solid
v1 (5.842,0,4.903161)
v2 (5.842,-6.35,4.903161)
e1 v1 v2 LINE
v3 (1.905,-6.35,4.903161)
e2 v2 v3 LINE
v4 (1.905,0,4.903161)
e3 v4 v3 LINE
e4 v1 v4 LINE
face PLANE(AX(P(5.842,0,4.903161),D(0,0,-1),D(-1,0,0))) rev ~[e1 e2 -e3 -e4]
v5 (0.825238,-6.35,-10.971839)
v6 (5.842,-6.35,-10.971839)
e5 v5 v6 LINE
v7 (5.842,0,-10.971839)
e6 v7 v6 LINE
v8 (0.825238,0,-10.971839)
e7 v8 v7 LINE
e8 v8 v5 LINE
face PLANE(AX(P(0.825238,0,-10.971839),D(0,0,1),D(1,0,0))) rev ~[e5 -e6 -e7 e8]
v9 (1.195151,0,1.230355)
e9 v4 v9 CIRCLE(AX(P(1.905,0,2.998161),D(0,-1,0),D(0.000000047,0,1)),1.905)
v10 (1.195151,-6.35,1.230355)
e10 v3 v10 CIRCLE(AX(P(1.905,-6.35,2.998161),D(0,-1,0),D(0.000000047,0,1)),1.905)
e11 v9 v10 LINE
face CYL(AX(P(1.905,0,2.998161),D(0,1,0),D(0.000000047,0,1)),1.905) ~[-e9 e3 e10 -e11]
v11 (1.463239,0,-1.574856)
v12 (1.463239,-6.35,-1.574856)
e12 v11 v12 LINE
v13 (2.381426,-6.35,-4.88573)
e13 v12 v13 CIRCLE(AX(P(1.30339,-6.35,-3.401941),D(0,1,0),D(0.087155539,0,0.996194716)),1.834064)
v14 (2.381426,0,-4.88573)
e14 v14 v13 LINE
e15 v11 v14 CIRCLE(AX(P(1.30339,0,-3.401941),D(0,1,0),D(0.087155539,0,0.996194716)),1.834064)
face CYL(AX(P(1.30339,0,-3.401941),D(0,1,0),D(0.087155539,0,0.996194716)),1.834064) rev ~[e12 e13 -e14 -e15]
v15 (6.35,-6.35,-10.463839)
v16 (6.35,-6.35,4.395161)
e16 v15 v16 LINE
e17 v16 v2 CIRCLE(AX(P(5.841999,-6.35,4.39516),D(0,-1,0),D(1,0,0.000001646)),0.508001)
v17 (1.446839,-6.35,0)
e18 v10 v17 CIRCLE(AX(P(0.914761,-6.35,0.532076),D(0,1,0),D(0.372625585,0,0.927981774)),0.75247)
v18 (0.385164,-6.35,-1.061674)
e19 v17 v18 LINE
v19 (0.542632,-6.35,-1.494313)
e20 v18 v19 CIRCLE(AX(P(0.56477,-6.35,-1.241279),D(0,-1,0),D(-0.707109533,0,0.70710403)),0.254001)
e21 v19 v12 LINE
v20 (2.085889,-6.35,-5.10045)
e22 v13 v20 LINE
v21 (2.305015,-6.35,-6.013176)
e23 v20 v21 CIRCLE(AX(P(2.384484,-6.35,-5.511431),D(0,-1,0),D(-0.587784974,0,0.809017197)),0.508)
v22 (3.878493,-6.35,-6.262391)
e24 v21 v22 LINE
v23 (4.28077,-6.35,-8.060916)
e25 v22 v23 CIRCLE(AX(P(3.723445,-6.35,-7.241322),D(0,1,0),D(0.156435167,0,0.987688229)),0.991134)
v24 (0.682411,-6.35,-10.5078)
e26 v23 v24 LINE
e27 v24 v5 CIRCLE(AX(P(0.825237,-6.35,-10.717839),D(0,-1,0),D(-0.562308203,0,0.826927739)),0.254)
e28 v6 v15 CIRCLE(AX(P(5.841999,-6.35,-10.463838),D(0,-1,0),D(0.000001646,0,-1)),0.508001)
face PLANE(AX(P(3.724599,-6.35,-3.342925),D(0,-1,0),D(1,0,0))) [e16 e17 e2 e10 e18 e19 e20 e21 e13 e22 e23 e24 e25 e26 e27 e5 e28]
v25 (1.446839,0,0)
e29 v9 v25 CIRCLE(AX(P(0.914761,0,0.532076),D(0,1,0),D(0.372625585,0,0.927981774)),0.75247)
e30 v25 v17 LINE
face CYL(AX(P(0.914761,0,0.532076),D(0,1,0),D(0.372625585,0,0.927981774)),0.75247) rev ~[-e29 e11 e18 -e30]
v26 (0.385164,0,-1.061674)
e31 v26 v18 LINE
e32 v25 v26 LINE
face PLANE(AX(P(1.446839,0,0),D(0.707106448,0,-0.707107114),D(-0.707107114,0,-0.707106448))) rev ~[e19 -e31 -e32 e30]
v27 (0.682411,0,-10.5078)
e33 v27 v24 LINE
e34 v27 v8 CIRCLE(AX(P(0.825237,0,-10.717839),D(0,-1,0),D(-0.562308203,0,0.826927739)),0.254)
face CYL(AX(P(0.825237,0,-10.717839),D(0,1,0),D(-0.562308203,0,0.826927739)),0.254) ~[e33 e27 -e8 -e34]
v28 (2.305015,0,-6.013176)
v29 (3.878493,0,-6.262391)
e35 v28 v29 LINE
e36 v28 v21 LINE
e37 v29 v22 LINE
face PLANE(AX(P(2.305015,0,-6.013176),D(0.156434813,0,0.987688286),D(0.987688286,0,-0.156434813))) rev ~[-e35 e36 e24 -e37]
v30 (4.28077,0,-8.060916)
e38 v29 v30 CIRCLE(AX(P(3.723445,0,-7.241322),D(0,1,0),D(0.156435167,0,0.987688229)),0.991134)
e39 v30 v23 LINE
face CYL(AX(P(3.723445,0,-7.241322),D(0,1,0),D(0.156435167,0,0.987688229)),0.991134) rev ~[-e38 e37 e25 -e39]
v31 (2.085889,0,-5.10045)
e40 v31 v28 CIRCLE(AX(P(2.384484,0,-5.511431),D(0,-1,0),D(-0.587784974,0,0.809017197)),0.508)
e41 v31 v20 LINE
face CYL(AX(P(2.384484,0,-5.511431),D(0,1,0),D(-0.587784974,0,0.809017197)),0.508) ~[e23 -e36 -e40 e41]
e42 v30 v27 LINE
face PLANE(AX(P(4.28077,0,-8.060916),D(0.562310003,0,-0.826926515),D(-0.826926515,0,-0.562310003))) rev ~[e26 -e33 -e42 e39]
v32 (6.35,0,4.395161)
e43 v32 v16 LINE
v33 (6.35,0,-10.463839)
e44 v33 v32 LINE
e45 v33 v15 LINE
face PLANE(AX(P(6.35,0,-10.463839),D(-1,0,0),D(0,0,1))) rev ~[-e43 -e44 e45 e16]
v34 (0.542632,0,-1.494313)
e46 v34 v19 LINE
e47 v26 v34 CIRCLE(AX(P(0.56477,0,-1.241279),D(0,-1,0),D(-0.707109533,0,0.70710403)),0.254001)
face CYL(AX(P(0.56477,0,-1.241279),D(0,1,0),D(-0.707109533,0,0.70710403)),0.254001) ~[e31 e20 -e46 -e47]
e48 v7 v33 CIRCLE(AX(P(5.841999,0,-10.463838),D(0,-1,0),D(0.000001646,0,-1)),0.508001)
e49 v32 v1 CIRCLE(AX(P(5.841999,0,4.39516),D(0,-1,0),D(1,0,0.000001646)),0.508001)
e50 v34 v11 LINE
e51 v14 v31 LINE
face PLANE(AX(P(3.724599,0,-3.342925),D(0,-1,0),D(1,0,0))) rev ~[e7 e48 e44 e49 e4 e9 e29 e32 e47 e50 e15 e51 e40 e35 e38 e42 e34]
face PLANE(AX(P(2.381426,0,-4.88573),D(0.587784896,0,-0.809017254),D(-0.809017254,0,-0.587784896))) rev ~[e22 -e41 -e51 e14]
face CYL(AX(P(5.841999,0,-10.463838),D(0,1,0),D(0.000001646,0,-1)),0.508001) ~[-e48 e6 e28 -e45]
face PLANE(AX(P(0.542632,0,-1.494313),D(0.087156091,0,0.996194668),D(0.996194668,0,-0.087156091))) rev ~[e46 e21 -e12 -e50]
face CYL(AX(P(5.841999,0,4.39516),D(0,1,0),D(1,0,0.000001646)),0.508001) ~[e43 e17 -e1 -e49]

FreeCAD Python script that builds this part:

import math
import FreeCAD as App
import Part
import Sketcher
Q = App.Units.Quantity

doc = App.newDocument("Part")
body = doc.addObject("PartDesign::Body", "Body")

# Sketch on XZ plane
sketch1 = doc.addObject("Sketcher::SketchObject", "Sketch")
body.addObject(sketch1)
sketch1.AttachmentSupport = (doc.XZ_Plane, [""])
sketch1.MapMode = "FlatFace"
sketch1.addGeometry([
    Part.ArcOfCircle(Part.Circle(App.Vector(5.841999, 4.39516, 0), App.Vector(0, 0, 1), 0.508001), math.radians(0.000094), math.radians(89.999906)),  # 0
    Part.LineSegment(App.Vector(5.842, 4.903161, 0), App.Vector(1.905, 4.903161, 0)),  # 1
    Part.ArcOfCircle(Part.Circle(App.Vector(1.905, 2.998161, 0), App.Vector(0, 0, 1), 1.905), math.radians(89.999997), math.radians(248.122454)),  # 2
    Part.ArcOfCircle(Part.Circle(App.Vector(0.914761, 0.532076, 0), App.Vector(0, 0, 1), 0.75247), math.radians(-44.999915), math.radians(68.122365)),  # 3
    Part.LineSegment(App.Vector(1.446839, 0, 0), App.Vector(0.385164, -1.061674, 0)),  # 4
    Part.ArcOfCircle(Part.Circle(App.Vector(0.56477, -1.241279, 0), App.Vector(0, 0, 1), 0.254001), math.radians(135.000223), math.radians(264.999843)),  # 5
    Part.LineSegment(App.Vector(0.542632, -1.494313, 0), App.Vector(1.463239, -1.574856, 0)),  # 6
    Part.ArcOfCircle(Part.Circle(App.Vector(1.30339, -3.401941, 0), App.Vector(0, 0, 1), 1.834064), math.radians(-54), math.radians(85.000012)),  # 7
    Part.LineSegment(App.Vector(2.381426, -4.88573, 0), App.Vector(2.085889, -5.10045, 0)),  # 8
    Part.ArcOfCircle(Part.Circle(App.Vector(2.384484, -5.511431, 0), App.Vector(0, 0, 1), 0.508), math.radians(125.99998), math.radians(261.000005)),  # 9
    Part.LineSegment(App.Vector(2.305015, -6.013176, 0), App.Vector(3.878493, -6.262391, 0)),  # 10
    Part.ArcOfCircle(Part.Circle(App.Vector(3.723445, -7.241322, 0), App.Vector(0, 0, 1), 0.991134), math.radians(-55.784241), math.radians(80.999959)),  # 11
    Part.LineSegment(App.Vector(4.28077, -8.060916, 0), App.Vector(0.682411, -10.5078, 0)),  # 12
    Part.ArcOfCircle(Part.Circle(App.Vector(0.825237, -10.717839, 0), App.Vector(0, 0, 1), 0.254), math.radians(124.215576), math.radians(270.000206)),  # 13
    Part.LineSegment(App.Vector(0.825238, -10.971839, 0), App.Vector(5.842, -10.971839, 0)),  # 14
    Part.ArcOfCircle(Part.Circle(App.Vector(5.841999, -10.463838, 0), App.Vector(0, 0, 1), 0.508001), math.radians(-89.999906), math.radians(-0.000094)),  # 15
    Part.LineSegment(App.Vector(6.35, -10.463839, 0), App.Vector(6.35, 4.395161, 0)),  # 16
], False)
sketch1.addConstraint([
    Sketcher.Constraint("Coincident", 0, 2, 1, 1),
    Sketcher.Constraint("Coincident", 1, 2, 2, 1),
    Sketcher.Constraint("Coincident", 2, 2, 3, 2),
    Sketcher.Constraint("Coincident", 3, 1, 4, 1),
    Sketcher.Constraint("Coincident", 4, 2, 5, 1),
    Sketcher.Constraint("Coincident", 5, 2, 6, 1),
    Sketcher.Constraint("Coincident", 6, 2, 7, 2),
    Sketcher.Constraint("Coincident", 7, 1, 8, 1),
    Sketcher.Constraint("Coincident", 8, 2, 9, 1),
    Sketcher.Constraint("Coincident", 9, 2, 10, 1),
    Sketcher.Constraint("Coincident", 10, 2, 11, 2),
    Sketcher.Constraint("Coincident", 11, 1, 12, 1),
    Sketcher.Constraint("Coincident", 12, 2, 13, 1),
    Sketcher.Constraint("Coincident", 13, 2, 14, 1),
    Sketcher.Constraint("Coincident", 14, 2, 15, 1),
    Sketcher.Constraint("Coincident", 15, 2, 16, 1),
    Sketcher.Constraint("Coincident", 16, 2, 0, 1),
    Sketcher.Constraint("Horizontal", 1),
    Sketcher.Constraint("Horizontal", 14),
    Sketcher.Constraint("Vertical", 16),
    Sketcher.Constraint("PointOnObject", 3, 1, -1),
    Sketcher.Constraint("Radius", 0, Q("0.02 in")),
    Sketcher.Constraint("Radius", 5, Q("0.01 in")),
    Sketcher.Constraint("Radius", 9, Q("0.02 in")),
    Sketcher.Constraint("Radius", 13, Q("0.01 in")),
    Sketcher.Constraint("Radius", 15, Q("0.02 in")),
    Sketcher.Constraint("Radius", 2, Q("0.075 in")),
    Sketcher.Constraint("DistanceX", 1, 2, 1, 1, Q("0.155 in")),
    Sketcher.Constraint("DistanceY", 16, 1, 16, 2, Q("0.585 in")),
    Sketcher.Constraint("DistanceX", -1, 1, 0, 3, Q("0.23 in")),
    Sketcher.Constraint("DistanceX", -1, 1, 0, 2, Q("0.23 in")),
    Sketcher.Constraint("DistanceX", -1, 1, 14, 2, Q("0.23 in")),
    Sketcher.Constraint("DistanceY", 14, 2, 15, 2, Q("0.02 in")),
    Sketcher.Constraint("DistanceY", 16, 2, 0, 2, Q("0.02 in")),
    Sketcher.Constraint("DistanceX", -1, 1, 2, 3, Q("0.075 in")),
    Sketcher.Constraint("Radius", 3, Q("0.75247 mm")),
    Sketcher.Constraint("Radius", 7, Q("1.834064 mm")),
    Sketcher.Constraint("Radius", 11, Q("0.991134 mm")),
    Sketcher.Constraint("DistanceY", 12, 2, -1, 1, Q("10.5078 mm")),
    Sketcher.Constraint("DistanceY", 7, 3, 0, 3, Q("7.797101 mm")),
    Sketcher.Constraint("DistanceY", 11, 3, 3, 3, Q("7.773398 mm")),
    Sketcher.Constraint("DistanceX", 3, 1, 6, 2, Q("0.0164 mm")),
    Sketcher.Constraint("DistanceY", 9, 3, 7, 1, Q("0.625701 mm")),
    Sketcher.Constraint("DistanceX", 7, 3, 8, 2, Q("0.782499 mm")),
    Sketcher.Constraint("Distance", 10, Q("1.593092 mm")),
    Sketcher.Constraint("DistanceX", 14, 1, 14, 2, Q("5.016762 mm")),
    Sketcher.Constraint("DistanceY", -1, 1, 0, 3, Q("4.39516 mm")),
    Sketcher.Constraint("DistanceX", -1, 1, 3, 3, Q("0.914761 mm")),
    Sketcher.Constraint("DistanceX", -1, 1, 5, 3, Q("0.56477 mm")),
    Sketcher.Constraint("DistanceY", 5, 3, -1, 1, Q("1.241279 mm")),
    Sketcher.Constraint("DistanceX", -1, 1, 7, 3, Q("1.30339 mm")),
    Sketcher.Constraint("DistanceY", 9, 3, -1, 1, Q("5.511431 mm")),
    Sketcher.Constraint("DistanceX", -1, 1, 2, 2, Q("1.195151 mm")),
    Sketcher.Constraint("DistanceY", 8, 2, -1, 1, Q("5.10045 mm")),
    Sketcher.Constraint("DistanceY", 10, 2, -1, 1, Q("6.262391 mm")),
    Sketcher.Constraint("DistanceX", -1, 1, 11, 1, Q("4.28077 mm")),
    Sketcher.Constraint("DistanceX", -1, 1, 12, 2, Q("0.682411 mm")),
    Sketcher.Constraint("DistanceX", 9, 3, 11, 3, Q("1.338961 mm")),
    Sketcher.Constraint("DistanceY", 4, 2, 3, 3, Q("1.59375 mm")),
    Sketcher.Constraint("DistanceX", 5, 2, 5, 3, Q("0.022138 mm")),
])
pad1 = doc.addObject("PartDesign::Pad", "Pad")
body.addObject(pad1)
pad1.Profile = sketch1
pad1.Length = Q("0.25 in")

doc.recompute()
